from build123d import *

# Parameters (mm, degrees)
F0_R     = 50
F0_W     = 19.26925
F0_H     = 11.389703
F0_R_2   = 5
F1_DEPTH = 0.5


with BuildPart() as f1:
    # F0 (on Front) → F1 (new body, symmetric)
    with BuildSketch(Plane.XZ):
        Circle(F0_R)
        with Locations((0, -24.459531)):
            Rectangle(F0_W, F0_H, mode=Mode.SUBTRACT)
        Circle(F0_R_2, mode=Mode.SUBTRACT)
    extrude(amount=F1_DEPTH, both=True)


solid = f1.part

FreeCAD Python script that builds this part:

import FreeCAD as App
import Part
import Sketcher

V = App.Vector
Q = App.Units.Quantity

doc = App.newDocument("Part")
body = doc.addObject("PartDesign::Body", "Body")

# Sketch on XZ plane
sketch1 = doc.addObject("Sketcher::SketchObject", "Sketch")
body.addObject(sketch1)
sketch1.AttachmentSupport = (doc.XZ_Plane, [""])
sketch1.MapMode = "FlatFace"
sketch1.addGeometry([
    Part.Circle(V(0, 0, 0), V(0, 0, 1), 50),  # 0
    Part.LineSegment(V(10, -30, 0), V(-10, -30, 0)),  # 1
    Part.LineSegment(V(-10, -30, 0), V(-10, -19, 0)),  # 2
    Part.LineSegment(V(-10, -19, 0), V(10, -19, 0)),  # 3
    Part.LineSegment(V(10, -19, 0), V(10, -30, 0)),  # 4
    Part.Circle(V(0, 0, 0), V(0, 0, 1), 5),  # 5
], False)
sketch1.addConstraint([
    Sketcher.Constraint("Coincident", 1, 2, 2, 1),
    Sketcher.Constraint("Coincident", 2, 2, 3, 1),
    Sketcher.Constraint("Coincident", 3, 2, 4, 1),
    Sketcher.Constraint("Coincident", 4, 2, 1, 1),
    Sketcher.Constraint("Horizontal", 1),
    Sketcher.Constraint("Vertical", 2),
    Sketcher.Constraint("Horizontal", 3),
    Sketcher.Constraint("Vertical", 4),
    Sketcher.Constraint("Coincident", 0, 3, -1, 1),
    Sketcher.Constraint("Coincident", 5, 3, -1, 1),
    Sketcher.Constraint("Diameter", 0, Q("100 mm")),
    Sketcher.Constraint("Diameter", 5, Q("10 mm")),
    Sketcher.Constraint("DistanceX", 1, 2, 1, 1, Q("19.26925 mm")),
    Sketcher.Constraint("DistanceY", 2, 1, 2, 2, Q("11.389703 mm")),
    Sketcher.Constraint("DistanceY", 2, 2, -1, 1, Q("18.764679 mm")),
    Sketcher.Constraint("DistanceX", 1, 2, -1, 1, Q("9.634625 mm")),
])
pad1 = doc.addObject("PartDesign::Pad", "Pad")
body.addObject(pad1)
pad1.Profile = sketch1
pad1.Length = 1
pad1.Midplane = True

doc.recompute()
